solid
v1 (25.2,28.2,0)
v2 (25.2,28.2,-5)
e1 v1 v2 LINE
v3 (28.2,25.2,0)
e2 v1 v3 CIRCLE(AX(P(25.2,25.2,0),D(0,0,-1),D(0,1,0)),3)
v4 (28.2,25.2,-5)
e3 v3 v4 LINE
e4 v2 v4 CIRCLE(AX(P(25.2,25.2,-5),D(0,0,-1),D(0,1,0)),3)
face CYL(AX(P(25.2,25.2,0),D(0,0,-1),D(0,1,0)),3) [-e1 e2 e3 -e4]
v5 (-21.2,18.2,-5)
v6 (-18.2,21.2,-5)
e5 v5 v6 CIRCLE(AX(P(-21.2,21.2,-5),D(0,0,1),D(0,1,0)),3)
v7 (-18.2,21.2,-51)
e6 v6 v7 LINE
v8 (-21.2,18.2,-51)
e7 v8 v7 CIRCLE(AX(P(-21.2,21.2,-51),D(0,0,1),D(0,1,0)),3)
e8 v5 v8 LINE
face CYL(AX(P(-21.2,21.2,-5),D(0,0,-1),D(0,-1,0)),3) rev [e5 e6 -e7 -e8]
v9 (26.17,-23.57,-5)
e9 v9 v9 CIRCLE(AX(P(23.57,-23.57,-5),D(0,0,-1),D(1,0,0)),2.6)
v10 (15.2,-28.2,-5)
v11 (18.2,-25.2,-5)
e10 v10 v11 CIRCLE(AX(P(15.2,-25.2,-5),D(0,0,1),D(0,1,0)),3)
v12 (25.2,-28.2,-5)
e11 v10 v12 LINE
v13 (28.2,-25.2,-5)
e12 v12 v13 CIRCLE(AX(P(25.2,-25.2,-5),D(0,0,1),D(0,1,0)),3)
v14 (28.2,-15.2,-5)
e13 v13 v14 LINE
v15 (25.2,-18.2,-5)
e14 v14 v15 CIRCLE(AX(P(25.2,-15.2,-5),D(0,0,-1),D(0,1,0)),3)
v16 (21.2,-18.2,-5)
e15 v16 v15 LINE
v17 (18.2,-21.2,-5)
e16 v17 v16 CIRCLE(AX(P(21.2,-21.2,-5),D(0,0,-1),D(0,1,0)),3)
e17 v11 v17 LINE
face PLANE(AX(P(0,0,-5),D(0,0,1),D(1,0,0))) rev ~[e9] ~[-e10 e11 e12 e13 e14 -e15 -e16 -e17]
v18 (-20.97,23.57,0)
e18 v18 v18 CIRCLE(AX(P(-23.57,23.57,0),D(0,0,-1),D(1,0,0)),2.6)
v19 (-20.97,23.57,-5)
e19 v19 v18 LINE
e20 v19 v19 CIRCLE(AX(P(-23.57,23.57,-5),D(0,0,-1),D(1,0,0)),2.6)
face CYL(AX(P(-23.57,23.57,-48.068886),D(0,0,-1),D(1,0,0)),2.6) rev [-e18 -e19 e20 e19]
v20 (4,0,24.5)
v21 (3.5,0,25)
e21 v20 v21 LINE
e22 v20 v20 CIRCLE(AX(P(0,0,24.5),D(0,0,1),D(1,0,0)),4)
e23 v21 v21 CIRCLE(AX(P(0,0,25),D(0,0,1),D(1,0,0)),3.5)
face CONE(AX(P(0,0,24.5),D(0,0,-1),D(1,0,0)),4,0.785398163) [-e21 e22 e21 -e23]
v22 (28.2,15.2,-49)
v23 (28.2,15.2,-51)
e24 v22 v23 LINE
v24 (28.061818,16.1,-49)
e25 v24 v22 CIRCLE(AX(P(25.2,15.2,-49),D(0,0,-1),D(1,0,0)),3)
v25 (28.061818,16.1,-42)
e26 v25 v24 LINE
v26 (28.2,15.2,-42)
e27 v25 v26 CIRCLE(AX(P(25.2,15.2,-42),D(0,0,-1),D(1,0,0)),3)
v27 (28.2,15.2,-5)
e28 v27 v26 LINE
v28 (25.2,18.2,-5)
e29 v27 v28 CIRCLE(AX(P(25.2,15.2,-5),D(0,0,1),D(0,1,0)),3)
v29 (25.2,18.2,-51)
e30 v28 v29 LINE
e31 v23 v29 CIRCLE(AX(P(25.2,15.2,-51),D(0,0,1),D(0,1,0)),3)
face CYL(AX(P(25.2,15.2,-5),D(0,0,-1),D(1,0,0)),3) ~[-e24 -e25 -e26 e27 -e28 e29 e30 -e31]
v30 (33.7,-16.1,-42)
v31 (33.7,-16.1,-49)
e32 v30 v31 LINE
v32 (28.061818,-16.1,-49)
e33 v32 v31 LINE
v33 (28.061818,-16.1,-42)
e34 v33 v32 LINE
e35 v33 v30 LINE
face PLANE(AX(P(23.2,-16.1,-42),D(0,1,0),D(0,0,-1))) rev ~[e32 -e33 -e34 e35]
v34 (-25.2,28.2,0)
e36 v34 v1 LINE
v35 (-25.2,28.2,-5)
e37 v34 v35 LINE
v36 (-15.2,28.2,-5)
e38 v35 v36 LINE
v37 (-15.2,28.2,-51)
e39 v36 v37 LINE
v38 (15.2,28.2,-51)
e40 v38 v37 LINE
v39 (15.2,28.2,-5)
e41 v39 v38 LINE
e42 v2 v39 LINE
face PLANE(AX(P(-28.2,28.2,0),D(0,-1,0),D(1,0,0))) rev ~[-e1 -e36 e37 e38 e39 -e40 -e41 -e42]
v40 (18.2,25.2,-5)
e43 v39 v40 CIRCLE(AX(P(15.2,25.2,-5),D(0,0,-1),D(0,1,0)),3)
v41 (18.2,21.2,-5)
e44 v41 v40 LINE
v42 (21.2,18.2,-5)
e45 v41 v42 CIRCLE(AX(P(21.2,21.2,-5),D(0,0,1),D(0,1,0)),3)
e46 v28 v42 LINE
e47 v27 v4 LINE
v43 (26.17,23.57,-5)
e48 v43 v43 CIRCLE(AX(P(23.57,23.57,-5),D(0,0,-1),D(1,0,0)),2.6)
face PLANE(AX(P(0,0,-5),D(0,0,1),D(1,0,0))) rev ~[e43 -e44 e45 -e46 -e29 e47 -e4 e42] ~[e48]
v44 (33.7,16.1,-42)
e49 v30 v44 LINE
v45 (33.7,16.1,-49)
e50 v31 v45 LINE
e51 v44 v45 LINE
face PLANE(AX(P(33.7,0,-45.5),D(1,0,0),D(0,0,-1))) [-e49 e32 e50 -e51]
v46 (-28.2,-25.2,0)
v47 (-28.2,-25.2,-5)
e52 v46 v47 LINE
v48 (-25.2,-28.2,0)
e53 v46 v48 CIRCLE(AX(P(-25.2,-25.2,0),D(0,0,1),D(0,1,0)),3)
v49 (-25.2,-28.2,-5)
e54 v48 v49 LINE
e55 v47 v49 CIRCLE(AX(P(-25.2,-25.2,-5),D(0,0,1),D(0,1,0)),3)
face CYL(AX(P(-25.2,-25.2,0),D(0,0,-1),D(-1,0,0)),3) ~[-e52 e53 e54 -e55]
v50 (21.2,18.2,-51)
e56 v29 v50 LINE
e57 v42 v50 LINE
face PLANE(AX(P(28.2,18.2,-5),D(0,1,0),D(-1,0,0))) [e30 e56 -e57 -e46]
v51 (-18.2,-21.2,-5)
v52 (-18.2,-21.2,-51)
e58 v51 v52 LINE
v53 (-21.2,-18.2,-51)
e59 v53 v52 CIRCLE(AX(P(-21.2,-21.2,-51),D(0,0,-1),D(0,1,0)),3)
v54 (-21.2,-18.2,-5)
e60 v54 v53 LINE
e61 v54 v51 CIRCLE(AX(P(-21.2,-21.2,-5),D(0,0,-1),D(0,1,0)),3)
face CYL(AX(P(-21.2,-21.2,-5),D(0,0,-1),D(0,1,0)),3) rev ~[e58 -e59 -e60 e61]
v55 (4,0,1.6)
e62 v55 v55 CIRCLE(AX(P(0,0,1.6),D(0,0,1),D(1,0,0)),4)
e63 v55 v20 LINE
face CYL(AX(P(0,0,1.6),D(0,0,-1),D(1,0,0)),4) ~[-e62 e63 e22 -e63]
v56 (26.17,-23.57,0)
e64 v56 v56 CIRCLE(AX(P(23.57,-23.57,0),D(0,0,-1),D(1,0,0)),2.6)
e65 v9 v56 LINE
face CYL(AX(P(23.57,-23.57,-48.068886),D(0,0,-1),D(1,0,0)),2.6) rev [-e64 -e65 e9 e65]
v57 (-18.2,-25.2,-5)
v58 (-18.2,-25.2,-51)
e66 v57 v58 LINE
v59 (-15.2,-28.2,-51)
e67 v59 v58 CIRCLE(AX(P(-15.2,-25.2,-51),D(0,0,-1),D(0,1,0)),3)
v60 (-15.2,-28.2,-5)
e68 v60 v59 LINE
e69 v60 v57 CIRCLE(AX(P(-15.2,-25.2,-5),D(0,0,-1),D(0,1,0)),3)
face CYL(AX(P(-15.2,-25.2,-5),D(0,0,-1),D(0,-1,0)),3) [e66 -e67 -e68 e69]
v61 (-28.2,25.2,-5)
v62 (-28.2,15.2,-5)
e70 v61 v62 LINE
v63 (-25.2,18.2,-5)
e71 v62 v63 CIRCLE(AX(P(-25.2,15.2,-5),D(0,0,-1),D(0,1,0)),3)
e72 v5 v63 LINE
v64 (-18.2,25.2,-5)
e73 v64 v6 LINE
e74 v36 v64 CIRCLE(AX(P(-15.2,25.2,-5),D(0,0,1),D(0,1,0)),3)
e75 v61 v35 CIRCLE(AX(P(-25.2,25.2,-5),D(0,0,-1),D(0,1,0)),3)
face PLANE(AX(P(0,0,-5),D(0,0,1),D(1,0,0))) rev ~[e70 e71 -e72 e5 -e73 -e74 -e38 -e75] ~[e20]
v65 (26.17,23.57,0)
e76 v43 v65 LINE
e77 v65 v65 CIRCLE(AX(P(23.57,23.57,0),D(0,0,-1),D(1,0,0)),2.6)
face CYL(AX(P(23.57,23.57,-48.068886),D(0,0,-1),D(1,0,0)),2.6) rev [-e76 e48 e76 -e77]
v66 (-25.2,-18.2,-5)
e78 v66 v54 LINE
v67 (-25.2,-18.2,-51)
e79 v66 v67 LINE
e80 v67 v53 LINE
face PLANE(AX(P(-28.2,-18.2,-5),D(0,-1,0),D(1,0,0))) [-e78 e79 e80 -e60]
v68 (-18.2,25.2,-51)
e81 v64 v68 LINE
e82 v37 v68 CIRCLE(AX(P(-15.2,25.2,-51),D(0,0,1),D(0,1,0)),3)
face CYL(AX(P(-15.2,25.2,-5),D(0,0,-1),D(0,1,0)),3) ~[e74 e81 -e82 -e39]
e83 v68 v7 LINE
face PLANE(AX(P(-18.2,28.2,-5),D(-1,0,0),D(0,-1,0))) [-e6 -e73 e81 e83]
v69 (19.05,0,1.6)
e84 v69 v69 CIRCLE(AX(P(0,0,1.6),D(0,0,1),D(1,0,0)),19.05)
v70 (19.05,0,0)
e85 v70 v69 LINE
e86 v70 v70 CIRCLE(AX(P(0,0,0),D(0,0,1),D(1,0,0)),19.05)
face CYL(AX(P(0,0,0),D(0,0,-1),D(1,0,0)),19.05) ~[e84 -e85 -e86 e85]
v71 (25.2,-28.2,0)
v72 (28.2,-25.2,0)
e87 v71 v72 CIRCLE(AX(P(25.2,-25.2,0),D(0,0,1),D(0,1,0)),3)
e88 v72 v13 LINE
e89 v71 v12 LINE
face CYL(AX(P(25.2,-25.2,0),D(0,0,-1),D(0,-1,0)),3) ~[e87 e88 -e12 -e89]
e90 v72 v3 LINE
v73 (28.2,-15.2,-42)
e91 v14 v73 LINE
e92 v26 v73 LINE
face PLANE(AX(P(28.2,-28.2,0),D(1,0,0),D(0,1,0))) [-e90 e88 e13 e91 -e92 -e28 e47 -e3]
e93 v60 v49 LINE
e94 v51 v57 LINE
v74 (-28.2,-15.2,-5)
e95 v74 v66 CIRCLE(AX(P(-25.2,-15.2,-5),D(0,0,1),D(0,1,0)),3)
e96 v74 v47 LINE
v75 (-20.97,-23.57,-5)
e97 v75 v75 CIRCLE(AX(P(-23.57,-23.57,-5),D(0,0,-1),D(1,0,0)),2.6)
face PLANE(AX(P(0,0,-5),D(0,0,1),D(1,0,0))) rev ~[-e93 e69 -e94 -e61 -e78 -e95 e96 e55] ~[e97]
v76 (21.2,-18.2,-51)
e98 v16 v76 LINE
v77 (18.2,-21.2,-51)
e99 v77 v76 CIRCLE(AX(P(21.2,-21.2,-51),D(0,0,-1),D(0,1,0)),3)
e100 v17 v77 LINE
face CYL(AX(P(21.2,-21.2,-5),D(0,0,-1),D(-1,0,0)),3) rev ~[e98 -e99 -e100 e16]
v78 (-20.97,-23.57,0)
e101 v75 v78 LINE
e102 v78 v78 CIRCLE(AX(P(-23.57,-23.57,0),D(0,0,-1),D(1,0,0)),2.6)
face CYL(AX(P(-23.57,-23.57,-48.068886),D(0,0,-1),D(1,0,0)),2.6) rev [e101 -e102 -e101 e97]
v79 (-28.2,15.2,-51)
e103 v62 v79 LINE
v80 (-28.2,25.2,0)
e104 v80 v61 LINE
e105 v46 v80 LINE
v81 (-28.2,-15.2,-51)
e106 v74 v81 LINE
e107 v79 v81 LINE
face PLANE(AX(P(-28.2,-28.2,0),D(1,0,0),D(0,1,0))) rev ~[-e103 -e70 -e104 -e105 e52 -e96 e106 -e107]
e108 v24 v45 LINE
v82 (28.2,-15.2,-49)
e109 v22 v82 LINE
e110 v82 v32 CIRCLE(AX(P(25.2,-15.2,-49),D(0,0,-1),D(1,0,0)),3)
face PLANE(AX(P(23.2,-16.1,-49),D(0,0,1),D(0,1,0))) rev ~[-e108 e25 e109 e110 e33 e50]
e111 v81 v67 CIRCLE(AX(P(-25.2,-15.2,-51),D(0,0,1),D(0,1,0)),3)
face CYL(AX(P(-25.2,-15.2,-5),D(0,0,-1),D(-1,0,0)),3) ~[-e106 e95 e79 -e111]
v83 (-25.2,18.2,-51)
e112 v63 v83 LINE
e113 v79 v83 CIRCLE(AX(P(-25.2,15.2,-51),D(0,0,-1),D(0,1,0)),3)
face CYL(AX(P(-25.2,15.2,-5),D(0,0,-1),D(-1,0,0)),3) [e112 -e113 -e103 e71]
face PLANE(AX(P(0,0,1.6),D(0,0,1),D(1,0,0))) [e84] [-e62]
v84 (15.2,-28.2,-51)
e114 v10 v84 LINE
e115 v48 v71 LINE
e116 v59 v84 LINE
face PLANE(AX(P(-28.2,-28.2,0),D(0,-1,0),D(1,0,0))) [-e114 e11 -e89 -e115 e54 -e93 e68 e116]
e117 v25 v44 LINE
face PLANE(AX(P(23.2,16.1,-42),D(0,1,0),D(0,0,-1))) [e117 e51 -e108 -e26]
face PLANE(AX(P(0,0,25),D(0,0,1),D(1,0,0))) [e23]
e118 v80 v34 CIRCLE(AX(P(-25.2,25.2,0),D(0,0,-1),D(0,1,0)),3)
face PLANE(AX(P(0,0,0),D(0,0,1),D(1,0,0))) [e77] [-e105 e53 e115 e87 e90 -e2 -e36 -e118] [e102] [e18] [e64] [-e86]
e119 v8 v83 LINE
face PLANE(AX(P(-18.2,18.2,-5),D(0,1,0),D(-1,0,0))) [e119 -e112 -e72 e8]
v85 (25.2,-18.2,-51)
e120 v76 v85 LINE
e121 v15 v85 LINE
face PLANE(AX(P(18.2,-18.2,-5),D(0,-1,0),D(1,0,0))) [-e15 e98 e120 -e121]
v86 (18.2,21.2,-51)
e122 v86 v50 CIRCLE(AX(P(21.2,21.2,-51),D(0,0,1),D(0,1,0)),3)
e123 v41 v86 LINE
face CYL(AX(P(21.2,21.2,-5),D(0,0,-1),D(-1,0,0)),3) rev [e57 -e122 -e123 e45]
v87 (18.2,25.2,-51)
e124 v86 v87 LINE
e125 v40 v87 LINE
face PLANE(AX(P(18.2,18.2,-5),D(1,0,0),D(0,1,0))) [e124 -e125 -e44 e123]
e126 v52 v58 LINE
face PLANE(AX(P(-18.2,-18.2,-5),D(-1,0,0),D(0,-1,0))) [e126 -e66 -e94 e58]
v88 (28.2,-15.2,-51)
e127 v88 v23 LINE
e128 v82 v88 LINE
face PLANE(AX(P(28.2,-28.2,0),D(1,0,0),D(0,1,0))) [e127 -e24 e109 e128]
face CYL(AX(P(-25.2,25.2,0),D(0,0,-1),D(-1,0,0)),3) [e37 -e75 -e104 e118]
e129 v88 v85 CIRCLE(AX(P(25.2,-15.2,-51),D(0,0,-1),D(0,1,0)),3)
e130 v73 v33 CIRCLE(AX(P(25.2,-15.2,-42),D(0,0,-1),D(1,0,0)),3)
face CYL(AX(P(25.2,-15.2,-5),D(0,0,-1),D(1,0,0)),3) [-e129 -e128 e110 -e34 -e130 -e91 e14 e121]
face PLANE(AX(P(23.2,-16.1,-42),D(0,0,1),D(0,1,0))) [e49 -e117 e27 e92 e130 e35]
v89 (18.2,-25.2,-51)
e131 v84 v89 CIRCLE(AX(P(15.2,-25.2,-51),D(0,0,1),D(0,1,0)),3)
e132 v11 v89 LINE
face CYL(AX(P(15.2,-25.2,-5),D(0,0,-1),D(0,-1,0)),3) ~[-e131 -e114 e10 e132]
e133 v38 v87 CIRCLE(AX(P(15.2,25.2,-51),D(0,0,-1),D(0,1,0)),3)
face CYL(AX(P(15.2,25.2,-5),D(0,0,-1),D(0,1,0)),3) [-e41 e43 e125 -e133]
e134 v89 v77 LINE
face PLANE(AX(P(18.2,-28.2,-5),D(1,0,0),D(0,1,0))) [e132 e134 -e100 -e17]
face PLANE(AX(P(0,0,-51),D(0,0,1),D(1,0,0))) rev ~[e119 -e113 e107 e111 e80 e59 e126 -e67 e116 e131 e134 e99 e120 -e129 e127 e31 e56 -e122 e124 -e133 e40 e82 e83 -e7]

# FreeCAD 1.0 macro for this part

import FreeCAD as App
import Part
import Sketcher

V = App.Vector


def edges_at(feature, points):
    """Names of the edges that pass closest to the given points."""
    edges = feature.Shape.Edges
    near = lambda p: min(range(len(edges)), key=lambda i: edges[i].distToShape(Part.Vertex(*p))[0])
    return sorted({f"Edge{near(p) + 1}" for p in points})


def add_polygon(sketch, points):
    """Adds a closed chain of lines whose ends are joined by coincident constraints."""
    first, n = sketch.GeometryCount, len(points)
    for a, b in zip(points, points[1:] + points[:1]):
        sketch.addGeometry(Part.LineSegment(App.Vector(*a, 0), App.Vector(*b, 0)), False)
    for i in range(n):
        sketch.addConstraint(Sketcher.Constraint("Coincident", first + i, 2, first + (i + 1) % n, 1))

doc = App.newDocument("Part")
body = doc.addObject("PartDesign::Body", "Body")

sketch1 = doc.addObject("Sketcher::SketchObject", "Sketch")
body.addObject(sketch1)
sketch1.AttachmentSupport = (doc.XY_Plane, [""])
sketch1.MapMode = "FlatFace"
add_polygon(sketch1, [(-28, 28), (-28, -28), (28, -28), (28, 28)])
sketch1.addConstraint(Sketcher.Constraint("Vertical", 0))
sketch1.addConstraint(Sketcher.Constraint("Horizontal", 1))
sketch1.addConstraint(Sketcher.Constraint("Vertical", 2))
sketch1.addConstraint(Sketcher.Constraint("Horizontal", 3))
sketch1.addConstraint(Sketcher.Constraint("Symmetric", 0, 2, 2, 2, -1, 1))
sketch1.addConstraint(Sketcher.Constraint("Equal", 3, 0))
sketch1.addConstraint(Sketcher.Constraint("DistanceX", 1, 1, 1, 2, 56.4))
pad1 = doc.addObject("PartDesign::Pad", "Pad")
body.addObject(pad1)
pad1.Profile = sketch1
pad1.Length = 5
pad1.Reversed = True

sketch2 = doc.addObject("Sketcher::SketchObject", "Sketch001")
body.addObject(sketch2)
sketch2.AttachmentSupport = (doc.XY_Plane, [""])
sketch2.MapMode = "FlatFace"
sketch2.addGeometry(Part.Circle(V(0, 0, 0), V(0, 0, 1), 19), False)
sketch2.addConstraint(Sketcher.Constraint("Coincident", 0, 3, -1, 1))
sketch2.addConstraint(Sketcher.Constraint("Diameter", 0, 38.1))
pad2 = doc.addObject("PartDesign::Pad", "Pad001")
body.addObject(pad2)
pad2.Profile = sketch2
pad2.Length = 1.6

sketch3 = doc.addObject("Sketcher::SketchObject", "Sketch002")
body.addObject(sketch3)
sketch3.AttachmentSupport = (doc.XY_Plane, [""])
sketch3.MapMode = "FlatFace"
sketch3.AttachmentOffset = App.Placement(V(0, 0, 1.6), App.Rotation())
sketch3.addGeometry(Part.Circle(V(0, 0, 0), V(0, 0, 1), 4), False)
sketch3.addConstraint(Sketcher.Constraint("Coincident", 0, 3, -1, 1))
sketch3.addConstraint(Sketcher.Constraint("Diameter", 0, 8.0))
pad3 = doc.addObject("PartDesign::Pad", "Pad002")
body.addObject(pad3)
pad3.Profile = sketch3
pad3.Length = 23.4
doc.recompute()

chamfer = doc.addObject("PartDesign::Chamfer", "Chamfer")
body.addObject(chamfer)
chamfer.Base = (pad3, edges_at(pad3, [(-4, 0, 25)]))
chamfer.Size = 0.5

sketch4 = doc.addObject("Sketcher::SketchObject", "Sketch003")
body.addObject(sketch4)
sketch4.AttachmentSupport = (doc.XY_Plane, [""])
sketch4.MapMode = "FlatFace"
sketch4.addGeometry(Part.Circle(V(-23.6, 23.6, 0), V(0, 0, 1), 2.6), False)
sketch4.addGeometry(Part.Circle(V(23.6, 23.6, 0), V(0, 0, 1), 2.6), False)
sketch4.addGeometry(Part.Circle(V(-23.6, -23.6, 0), V(0, 0, 1), 2.6), False)
sketch4.addGeometry(Part.Circle(V(23.6, -23.6, 0), V(0, 0, 1), 2.6), False)
sketch4.addConstraint(Sketcher.Constraint("Equal", 0, 1))
sketch4.addConstraint(Sketcher.Constraint("Equal", 1, 2))
sketch4.addConstraint(Sketcher.Constraint("Equal", 2, 3))
sketch4.addConstraint(Sketcher.Constraint("Symmetric", 1, 3, 2, 3, -1, 1))
sketch4.addConstraint(Sketcher.Constraint("Symmetric", 0, 3, 3, 3, -1, 1))
sketch4.addConstraint(Sketcher.Constraint("Symmetric", 0, 3, 1, 3, -2))
sketch4.addConstraint(Sketcher.Constraint("Diameter", 0, 5.2))
sketch4.addConstraint(Sketcher.Constraint("DistanceX", 0, 3, -1, 1, 23.57))
sketch4.addConstraint(Sketcher.Constraint("DistanceY", -1, 1, 0, 3, 23.57))
pocket1 = doc.addObject("PartDesign::Pocket", "Pocket")
body.addObject(pocket1)
pocket1.Profile = sketch4
pocket1.Type = "ThroughAll"
pocket1.Midplane = True
doc.recompute()

fillet = doc.addObject("PartDesign::Fillet", "Fillet")
body.addObject(fillet)
fillet.Base = (pocket1, edges_at(pocket1, [
    (28.2, -28.2, -2.5),
    (-28.2, -28.2, -2.5),
    (-28.2, 28.2, -2.5),
    (28.2, 28.2, -2.5),
]))
fillet.Radius = 3

sketch5 = doc.addObject("Sketcher::SketchObject", "Sketch004")
body.addObject(sketch5)
sketch5.AttachmentSupport = (doc.XY_Plane, [""])
sketch5.MapMode = "FlatFace"
sketch5.AttachmentOffset = App.Placement(V(0, 0, -5), App.Rotation())
add_polygon(sketch5, [(-18, 28), (18, 28), (18, 18), (28, 18), (28, -18), (18, -18), (18, -28), (-18, -28), (-18, -18), (-28, -18), (-28, 18), (-18, 18)])
sketch5.addConstraint(Sketcher.Constraint("Horizontal", 0))
sketch5.addConstraint(Sketcher.Constraint("Vertical", 1))
sketch5.addConstraint(Sketcher.Constraint("Horizontal", 2))
sketch5.addConstraint(Sketcher.Constraint("Vertical", 3))
sketch5.addConstraint(Sketcher.Constraint("Horizontal", 4))
sketch5.addConstraint(Sketcher.Constraint("Vertical", 5))
sketch5.addConstraint(Sketcher.Constraint("Horizontal", 6))
sketch5.addConstraint(Sketcher.Constraint("Vertical", 7))
sketch5.addConstraint(Sketcher.Constraint("Horizontal", 8))
sketch5.addConstraint(Sketcher.Constraint("Vertical", 9))
sketch5.addConstraint(Sketcher.Constraint("Horizontal", 10))
sketch5.addConstraint(Sketcher.Constraint("Vertical", 11))
sketch5.addConstraint(Sketcher.Constraint("Symmetric", 0, 2, 6, 2, -1, 1))
sketch5.addConstraint(Sketcher.Constraint("Symmetric", 2, 2, 8, 2, -1, 1))
sketch5.addConstraint(Sketcher.Constraint("Symmetric", 4, 2, 10, 2, -1, 1))
sketch5.addConstraint(Sketcher.Constraint("Symmetric", 4, 2, 7, 2, -2))
sketch5.addConstraint(Sketcher.Constraint("Equal", 10, 1))
sketch5.addConstraint(Sketcher.Constraint("Equal", 6, 3))
sketch5.addConstraint(Sketcher.Constraint("DistanceX", 2, 1, 2, 2, 10.0))
sketch5.addConstraint(Sketcher.Constraint("DistanceX", 0, 1, 0, 2, 36.4))
pad4 = doc.addObject("PartDesign::Pad", "Pad003")
body.addObject(pad4)
pad4.Profile = sketch5
pad4.Length = 46
pad4.Reversed = True
doc.recompute()

fillet2 = doc.addObject("PartDesign::Fillet", "Fillet001")
body.addObject(fillet2)
fillet2.Base = (pad4, edges_at(pad4, [
    (-18.2, 18.2, -28),
    (-18.2, 28.2, -28),
    (18.2, 28.2, -28),
    (18.2, 18.2, -28),
    (28.2, 18.2, -28),
    (28.2, -18.2, -28),
    (18.2, -18.2, -28),
    (18.2, -28.2, -28),
    (-18.2, -28.2, -28),
    (-18.2, -18.2, -28),
    (-28.2, -18.2, -28),
    (-28.2, 18.2, -28),
]))
fillet2.Radius = 3

sketch6 = doc.addObject("Sketcher::SketchObject", "Sketch005")
body.addObject(sketch6)
sketch6.AttachmentSupport = (doc.YZ_Plane, [""])
sketch6.MapMode = "FlatFace"
sketch6.AttachmentOffset = App.Placement(V(0, 0, 28.2), App.Rotation())
add_polygon(sketch6, [(16, -42), (-16, -42), (-16, -49), (16, -49)])
sketch6.addConstraint(Sketcher.Constraint("Horizontal", 0))
sketch6.addConstraint(Sketcher.Constraint("Vertical", 1))
sketch6.addConstraint(Sketcher.Constraint("Horizontal", 2))
sketch6.addConstraint(Sketcher.Constraint("Vertical", 3))
sketch6.addConstraint(Sketcher.Constraint("DistanceY", 1, 2, 1, 1, 7.0))
sketch6.addConstraint(Sketcher.Constraint("DistanceX", 0, 2, 0, 1, 32.2))
sketch6.addConstraint(Sketcher.Constraint("DistanceY", 0, 2, -1, 1, 42.0))
sketch6.addConstraint(Sketcher.Constraint("DistanceX", 0, 2, -1, 1, 16.1))
pad5 = doc.addObject("PartDesign::Pad", "Pad004")
body.addObject(pad5)
pad5.Profile = sketch6
pad5.Type = "TwoLengths"
pad5.Length = 5.5
pad5.Length2 = 5

doc.recompute()
